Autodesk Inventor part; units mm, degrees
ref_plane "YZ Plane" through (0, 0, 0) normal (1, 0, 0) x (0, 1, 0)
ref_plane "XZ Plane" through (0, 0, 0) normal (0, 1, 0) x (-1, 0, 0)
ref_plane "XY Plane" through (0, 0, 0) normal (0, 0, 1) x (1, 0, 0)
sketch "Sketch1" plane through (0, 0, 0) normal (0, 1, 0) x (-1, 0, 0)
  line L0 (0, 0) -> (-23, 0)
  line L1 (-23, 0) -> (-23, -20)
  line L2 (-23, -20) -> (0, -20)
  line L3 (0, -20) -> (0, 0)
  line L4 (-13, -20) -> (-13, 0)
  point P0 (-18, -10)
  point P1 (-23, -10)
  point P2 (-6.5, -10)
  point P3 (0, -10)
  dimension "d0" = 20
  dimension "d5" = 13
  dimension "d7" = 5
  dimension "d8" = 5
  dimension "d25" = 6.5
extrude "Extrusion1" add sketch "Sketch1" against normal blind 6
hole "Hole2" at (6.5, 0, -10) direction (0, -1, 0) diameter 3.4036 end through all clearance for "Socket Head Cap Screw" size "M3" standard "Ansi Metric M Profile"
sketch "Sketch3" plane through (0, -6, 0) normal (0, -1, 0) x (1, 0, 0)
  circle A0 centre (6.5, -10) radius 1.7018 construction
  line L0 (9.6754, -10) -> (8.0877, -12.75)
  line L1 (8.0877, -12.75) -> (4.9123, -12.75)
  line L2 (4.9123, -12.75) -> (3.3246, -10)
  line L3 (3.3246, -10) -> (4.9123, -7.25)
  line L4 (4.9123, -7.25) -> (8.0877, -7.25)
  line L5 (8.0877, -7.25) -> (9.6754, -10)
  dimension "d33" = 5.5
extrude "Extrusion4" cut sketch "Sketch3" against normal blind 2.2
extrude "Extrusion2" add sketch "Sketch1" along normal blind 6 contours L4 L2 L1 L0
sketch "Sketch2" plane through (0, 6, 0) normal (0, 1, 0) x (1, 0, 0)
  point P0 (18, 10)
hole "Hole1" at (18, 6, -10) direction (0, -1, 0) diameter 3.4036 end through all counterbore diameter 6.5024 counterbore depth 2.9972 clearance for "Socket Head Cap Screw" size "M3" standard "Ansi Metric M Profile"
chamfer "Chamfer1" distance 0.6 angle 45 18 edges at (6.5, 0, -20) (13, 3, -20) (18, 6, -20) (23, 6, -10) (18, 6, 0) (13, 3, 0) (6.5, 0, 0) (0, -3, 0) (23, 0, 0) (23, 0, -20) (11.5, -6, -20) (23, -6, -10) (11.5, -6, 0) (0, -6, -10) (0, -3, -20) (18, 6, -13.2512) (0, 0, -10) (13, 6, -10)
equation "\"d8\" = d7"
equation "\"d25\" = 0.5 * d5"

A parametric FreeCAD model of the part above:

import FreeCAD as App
import Part
import Sketcher
Q = App.Units.Quantity


def edges_at(feature, points):
    """Names of the edges that pass closest to the given points."""
    edges = feature.Shape.Edges
    near = lambda p: min(range(len(edges)), key=lambda i: edges[i].distToShape(Part.Vertex(*p))[0])
    return sorted({f"Edge{near(p) + 1}" for p in points})

doc = App.newDocument("Part")
body = doc.addObject("PartDesign::Body", "Body")

sketch1 = body.newObject("Sketcher::SketchObject", "Sketch")
sketch1.AttachmentSupport = (doc.getObject("XZ_Plane"), [""])
sketch1.MapMode = "FlatFace"
sketch1.addGeometry([
    Part.LineSegment(App.Vector(0, -20, 0), App.Vector(0, 0, 0)),
    Part.LineSegment(App.Vector(0, 0, 0), App.Vector(23, 0, 0)),
    Part.LineSegment(App.Vector(23, 0, 0), App.Vector(23, -20, 0)),
    Part.LineSegment(App.Vector(23, -20, 0), App.Vector(0, -20, 0)),
], False)
sketch1.addConstraint([
    Sketcher.Constraint("Coincident", 0, 2, 1, 1),
    Sketcher.Constraint("Coincident", 1, 2, 2, 1),
    Sketcher.Constraint("Coincident", 2, 2, 3, 1),
    Sketcher.Constraint("Coincident", 3, 2, 0, 1),
    Sketcher.Constraint("Vertical", 0),
    Sketcher.Constraint("Horizontal", 1),
    Sketcher.Constraint("Vertical", 2),
    Sketcher.Constraint("Horizontal", 3),
    Sketcher.Constraint("Coincident", 0, 2, -1, 1),
    Sketcher.Constraint("DistanceY", 0, 1, 0, 2, Q("20 mm")),
    Sketcher.Constraint("DistanceX", 1, 1, 1, 2, Q("23 mm")),
])
pad1 = body.newObject("PartDesign::Pad", "Pad")
pad1.Profile = sketch1
pad1.Length = 6

sketch2 = body.newObject("Sketcher::SketchObject", "Sketch001")
sketch2.AttachmentSupport = (doc.getObject("XZ_Plane"), [""])
sketch2.MapMode = "FlatFace"
sketch2.addGeometry(Part.Circle(App.Vector(6.5, -10, 0), App.Vector(0, 0, 1), 1.7018), False)
sketch2.addConstraint([
    Sketcher.Constraint("DistanceY", 0, 3, -1, 1, Q("10 mm")),
    Sketcher.Constraint("Diameter", 0, Q("3.4036 mm")),
    Sketcher.Constraint("DistanceX", -1, 1, 0, 3, Q("6.5 mm")),
])
doc.recompute()
hole = body.newObject("PartDesign::Hole", "Hole")
hole.Profile = sketch2
hole.ThreadType = "None"
hole.Diameter = 3.4036
hole.DepthType = "ThroughAll"
hole.Reversed = True

sketch3 = body.newObject("Sketcher::SketchObject", "Sketch002")
sketch3.AttachmentSupport = (doc.getObject("XZ_Plane"), [""])
sketch3.MapMode = "FlatFace"
sketch3.AttachmentOffset = App.Placement(App.Vector(0, 0, 6), App.Rotation())
sketch3.addGeometry([
    Part.LineSegment(App.Vector(8.0877, -12.75, 0), App.Vector(9.6754, -10, 0)),
    Part.LineSegment(App.Vector(9.6754, -10, 0), App.Vector(8.0877, -7.25, 0)),
    Part.LineSegment(App.Vector(8.0877, -7.25, 0), App.Vector(4.9123, -7.25, 0)),
    Part.LineSegment(App.Vector(4.9123, -7.25, 0), App.Vector(3.3246, -10, 0)),
    Part.LineSegment(App.Vector(3.3246, -10, 0), App.Vector(4.9123, -12.75, 0)),
    Part.LineSegment(App.Vector(4.9123, -12.75, 0), App.Vector(8.0877, -12.75, 0)),
], False)
sketch3.addConstraint([
    Sketcher.Constraint("Coincident", 0, 2, 1, 1),
    Sketcher.Constraint("Coincident", 1, 2, 2, 1),
    Sketcher.Constraint("Coincident", 2, 2, 3, 1),
    Sketcher.Constraint("Coincident", 3, 2, 4, 1),
    Sketcher.Constraint("Coincident", 4, 2, 5, 1),
    Sketcher.Constraint("Coincident", 5, 2, 0, 1),
    Sketcher.Constraint("Horizontal", 2),
    Sketcher.Constraint("Horizontal", 5),
    Sketcher.Constraint("Parallel", 0, 3),
    Sketcher.Constraint("Parallel", 1, 4),
    Sketcher.Constraint("Horizontal", 0, 2, 3, 2),
    Sketcher.Constraint("Vertical", 2, 2, 4, 2),
    Sketcher.Constraint("Vertical", 1, 2, 5, 2),
    Sketcher.Constraint("DistanceY", 4, 2, 2, 2, Q("5.5 mm")),
    Sketcher.Constraint("Angle", 0, Q("60.0002 deg")),
    Sketcher.Constraint("DistanceY", 0, 2, -1, 1, Q("10 mm")),
    Sketcher.Constraint("DistanceX", 2, 2, 2, 1, Q("3.1754 mm")),
    Sketcher.Constraint("DistanceX", -1, 1, 0, 2, Q("9.6754 mm")),
])
pocket1 = body.newObject("PartDesign::Pocket", "Pocket")
pocket1.Profile = sketch3
pocket1.Length = 2.2

sketch4 = body.newObject("Sketcher::SketchObject", "Sketch003")
sketch4.AttachmentSupport = (doc.getObject("XZ_Plane"), [""])
sketch4.MapMode = "FlatFace"
sketch4.addGeometry([
    Part.LineSegment(App.Vector(13, -20, 0), App.Vector(13, 0, 0)),
    Part.LineSegment(App.Vector(13, 0, 0), App.Vector(23, 0, 0)),
    Part.LineSegment(App.Vector(23, 0, 0), App.Vector(23, -20, 0)),
    Part.LineSegment(App.Vector(23, -20, 0), App.Vector(13, -20, 0)),
], False)
sketch4.addConstraint([
    Sketcher.Constraint("Coincident", 0, 2, 1, 1),
    Sketcher.Constraint("Coincident", 1, 2, 2, 1),
    Sketcher.Constraint("Coincident", 2, 2, 3, 1),
    Sketcher.Constraint("Coincident", 3, 2, 0, 1),
    Sketcher.Constraint("Vertical", 0),
    Sketcher.Constraint("Horizontal", 1),
    Sketcher.Constraint("Vertical", 2),
    Sketcher.Constraint("Horizontal", 3),
    Sketcher.Constraint("PointOnObject", 0, 2, -1),
    Sketcher.Constraint("DistanceY", 0, 1, 0, 2, Q("20 mm")),
    Sketcher.Constraint("DistanceX", -1, 1, 0, 2, Q("13 mm")),
    Sketcher.Constraint("DistanceX", 1, 1, 1, 2, Q("10 mm")),
])
pad2 = body.newObject("PartDesign::Pad", "Pad001")
pad2.Profile = sketch4
pad2.Length = 6
pad2.Reversed = True

sketch5 = body.newObject("Sketcher::SketchObject", "Sketch004")
sketch5.AttachmentSupport = (doc.getObject("XZ_Plane"), [""])
sketch5.MapMode = "FlatFace"
sketch5.AttachmentOffset = App.Placement(App.Vector(0, 0, -6), App.Rotation())
sketch5.addGeometry(Part.Circle(App.Vector(18, -10, 0), App.Vector(0, 0, 1), 1.7018), False)
sketch5.addConstraint([
    Sketcher.Constraint("DistanceX", -1, 1, 0, 3, Q("18 mm")),
    Sketcher.Constraint("DistanceY", 0, 3, -1, 1, Q("10 mm")),
    Sketcher.Constraint("Diameter", 0, Q("3.4036 mm")),
])
doc.recompute()
hole2 = body.newObject("PartDesign::Hole", "Hole001")
hole2.Profile = sketch5
hole2.ThreadType = "None"
hole2.Diameter = 3.4036
hole2.DepthType = "ThroughAll"
hole2.HoleCutType = "Counterbore"
hole2.HoleCutDiameter = 6.5024
hole2.HoleCutDepth = 2.9972
hole2.Reversed = True
doc.recompute()

chamfer = body.newObject("PartDesign::Chamfer", "Chamfer")
chamfer.Base = (hole2, edges_at(hole2, [
    (6.5, 0, -20),
    (13, 3, -20),
    (18, 6, -20),
    (23, 6, -10),
    (18, 6, 0),
    (13, 3, 0),
    (6.5, 0, 0),
    (0, -3, 0),
    (23, 0, 0),
    (23, 0, -20),
    (11.5, -6, -20),
    (23, -6, -10),
    (11.5, -6, 0),
    (0, -6, -10),
    (0, -3, -20),
    (18, 6, -13.251),
    (0, 0, -10),
    (13, 6, -10),
]))
chamfer.Size = 0.6

doc.recompute()
